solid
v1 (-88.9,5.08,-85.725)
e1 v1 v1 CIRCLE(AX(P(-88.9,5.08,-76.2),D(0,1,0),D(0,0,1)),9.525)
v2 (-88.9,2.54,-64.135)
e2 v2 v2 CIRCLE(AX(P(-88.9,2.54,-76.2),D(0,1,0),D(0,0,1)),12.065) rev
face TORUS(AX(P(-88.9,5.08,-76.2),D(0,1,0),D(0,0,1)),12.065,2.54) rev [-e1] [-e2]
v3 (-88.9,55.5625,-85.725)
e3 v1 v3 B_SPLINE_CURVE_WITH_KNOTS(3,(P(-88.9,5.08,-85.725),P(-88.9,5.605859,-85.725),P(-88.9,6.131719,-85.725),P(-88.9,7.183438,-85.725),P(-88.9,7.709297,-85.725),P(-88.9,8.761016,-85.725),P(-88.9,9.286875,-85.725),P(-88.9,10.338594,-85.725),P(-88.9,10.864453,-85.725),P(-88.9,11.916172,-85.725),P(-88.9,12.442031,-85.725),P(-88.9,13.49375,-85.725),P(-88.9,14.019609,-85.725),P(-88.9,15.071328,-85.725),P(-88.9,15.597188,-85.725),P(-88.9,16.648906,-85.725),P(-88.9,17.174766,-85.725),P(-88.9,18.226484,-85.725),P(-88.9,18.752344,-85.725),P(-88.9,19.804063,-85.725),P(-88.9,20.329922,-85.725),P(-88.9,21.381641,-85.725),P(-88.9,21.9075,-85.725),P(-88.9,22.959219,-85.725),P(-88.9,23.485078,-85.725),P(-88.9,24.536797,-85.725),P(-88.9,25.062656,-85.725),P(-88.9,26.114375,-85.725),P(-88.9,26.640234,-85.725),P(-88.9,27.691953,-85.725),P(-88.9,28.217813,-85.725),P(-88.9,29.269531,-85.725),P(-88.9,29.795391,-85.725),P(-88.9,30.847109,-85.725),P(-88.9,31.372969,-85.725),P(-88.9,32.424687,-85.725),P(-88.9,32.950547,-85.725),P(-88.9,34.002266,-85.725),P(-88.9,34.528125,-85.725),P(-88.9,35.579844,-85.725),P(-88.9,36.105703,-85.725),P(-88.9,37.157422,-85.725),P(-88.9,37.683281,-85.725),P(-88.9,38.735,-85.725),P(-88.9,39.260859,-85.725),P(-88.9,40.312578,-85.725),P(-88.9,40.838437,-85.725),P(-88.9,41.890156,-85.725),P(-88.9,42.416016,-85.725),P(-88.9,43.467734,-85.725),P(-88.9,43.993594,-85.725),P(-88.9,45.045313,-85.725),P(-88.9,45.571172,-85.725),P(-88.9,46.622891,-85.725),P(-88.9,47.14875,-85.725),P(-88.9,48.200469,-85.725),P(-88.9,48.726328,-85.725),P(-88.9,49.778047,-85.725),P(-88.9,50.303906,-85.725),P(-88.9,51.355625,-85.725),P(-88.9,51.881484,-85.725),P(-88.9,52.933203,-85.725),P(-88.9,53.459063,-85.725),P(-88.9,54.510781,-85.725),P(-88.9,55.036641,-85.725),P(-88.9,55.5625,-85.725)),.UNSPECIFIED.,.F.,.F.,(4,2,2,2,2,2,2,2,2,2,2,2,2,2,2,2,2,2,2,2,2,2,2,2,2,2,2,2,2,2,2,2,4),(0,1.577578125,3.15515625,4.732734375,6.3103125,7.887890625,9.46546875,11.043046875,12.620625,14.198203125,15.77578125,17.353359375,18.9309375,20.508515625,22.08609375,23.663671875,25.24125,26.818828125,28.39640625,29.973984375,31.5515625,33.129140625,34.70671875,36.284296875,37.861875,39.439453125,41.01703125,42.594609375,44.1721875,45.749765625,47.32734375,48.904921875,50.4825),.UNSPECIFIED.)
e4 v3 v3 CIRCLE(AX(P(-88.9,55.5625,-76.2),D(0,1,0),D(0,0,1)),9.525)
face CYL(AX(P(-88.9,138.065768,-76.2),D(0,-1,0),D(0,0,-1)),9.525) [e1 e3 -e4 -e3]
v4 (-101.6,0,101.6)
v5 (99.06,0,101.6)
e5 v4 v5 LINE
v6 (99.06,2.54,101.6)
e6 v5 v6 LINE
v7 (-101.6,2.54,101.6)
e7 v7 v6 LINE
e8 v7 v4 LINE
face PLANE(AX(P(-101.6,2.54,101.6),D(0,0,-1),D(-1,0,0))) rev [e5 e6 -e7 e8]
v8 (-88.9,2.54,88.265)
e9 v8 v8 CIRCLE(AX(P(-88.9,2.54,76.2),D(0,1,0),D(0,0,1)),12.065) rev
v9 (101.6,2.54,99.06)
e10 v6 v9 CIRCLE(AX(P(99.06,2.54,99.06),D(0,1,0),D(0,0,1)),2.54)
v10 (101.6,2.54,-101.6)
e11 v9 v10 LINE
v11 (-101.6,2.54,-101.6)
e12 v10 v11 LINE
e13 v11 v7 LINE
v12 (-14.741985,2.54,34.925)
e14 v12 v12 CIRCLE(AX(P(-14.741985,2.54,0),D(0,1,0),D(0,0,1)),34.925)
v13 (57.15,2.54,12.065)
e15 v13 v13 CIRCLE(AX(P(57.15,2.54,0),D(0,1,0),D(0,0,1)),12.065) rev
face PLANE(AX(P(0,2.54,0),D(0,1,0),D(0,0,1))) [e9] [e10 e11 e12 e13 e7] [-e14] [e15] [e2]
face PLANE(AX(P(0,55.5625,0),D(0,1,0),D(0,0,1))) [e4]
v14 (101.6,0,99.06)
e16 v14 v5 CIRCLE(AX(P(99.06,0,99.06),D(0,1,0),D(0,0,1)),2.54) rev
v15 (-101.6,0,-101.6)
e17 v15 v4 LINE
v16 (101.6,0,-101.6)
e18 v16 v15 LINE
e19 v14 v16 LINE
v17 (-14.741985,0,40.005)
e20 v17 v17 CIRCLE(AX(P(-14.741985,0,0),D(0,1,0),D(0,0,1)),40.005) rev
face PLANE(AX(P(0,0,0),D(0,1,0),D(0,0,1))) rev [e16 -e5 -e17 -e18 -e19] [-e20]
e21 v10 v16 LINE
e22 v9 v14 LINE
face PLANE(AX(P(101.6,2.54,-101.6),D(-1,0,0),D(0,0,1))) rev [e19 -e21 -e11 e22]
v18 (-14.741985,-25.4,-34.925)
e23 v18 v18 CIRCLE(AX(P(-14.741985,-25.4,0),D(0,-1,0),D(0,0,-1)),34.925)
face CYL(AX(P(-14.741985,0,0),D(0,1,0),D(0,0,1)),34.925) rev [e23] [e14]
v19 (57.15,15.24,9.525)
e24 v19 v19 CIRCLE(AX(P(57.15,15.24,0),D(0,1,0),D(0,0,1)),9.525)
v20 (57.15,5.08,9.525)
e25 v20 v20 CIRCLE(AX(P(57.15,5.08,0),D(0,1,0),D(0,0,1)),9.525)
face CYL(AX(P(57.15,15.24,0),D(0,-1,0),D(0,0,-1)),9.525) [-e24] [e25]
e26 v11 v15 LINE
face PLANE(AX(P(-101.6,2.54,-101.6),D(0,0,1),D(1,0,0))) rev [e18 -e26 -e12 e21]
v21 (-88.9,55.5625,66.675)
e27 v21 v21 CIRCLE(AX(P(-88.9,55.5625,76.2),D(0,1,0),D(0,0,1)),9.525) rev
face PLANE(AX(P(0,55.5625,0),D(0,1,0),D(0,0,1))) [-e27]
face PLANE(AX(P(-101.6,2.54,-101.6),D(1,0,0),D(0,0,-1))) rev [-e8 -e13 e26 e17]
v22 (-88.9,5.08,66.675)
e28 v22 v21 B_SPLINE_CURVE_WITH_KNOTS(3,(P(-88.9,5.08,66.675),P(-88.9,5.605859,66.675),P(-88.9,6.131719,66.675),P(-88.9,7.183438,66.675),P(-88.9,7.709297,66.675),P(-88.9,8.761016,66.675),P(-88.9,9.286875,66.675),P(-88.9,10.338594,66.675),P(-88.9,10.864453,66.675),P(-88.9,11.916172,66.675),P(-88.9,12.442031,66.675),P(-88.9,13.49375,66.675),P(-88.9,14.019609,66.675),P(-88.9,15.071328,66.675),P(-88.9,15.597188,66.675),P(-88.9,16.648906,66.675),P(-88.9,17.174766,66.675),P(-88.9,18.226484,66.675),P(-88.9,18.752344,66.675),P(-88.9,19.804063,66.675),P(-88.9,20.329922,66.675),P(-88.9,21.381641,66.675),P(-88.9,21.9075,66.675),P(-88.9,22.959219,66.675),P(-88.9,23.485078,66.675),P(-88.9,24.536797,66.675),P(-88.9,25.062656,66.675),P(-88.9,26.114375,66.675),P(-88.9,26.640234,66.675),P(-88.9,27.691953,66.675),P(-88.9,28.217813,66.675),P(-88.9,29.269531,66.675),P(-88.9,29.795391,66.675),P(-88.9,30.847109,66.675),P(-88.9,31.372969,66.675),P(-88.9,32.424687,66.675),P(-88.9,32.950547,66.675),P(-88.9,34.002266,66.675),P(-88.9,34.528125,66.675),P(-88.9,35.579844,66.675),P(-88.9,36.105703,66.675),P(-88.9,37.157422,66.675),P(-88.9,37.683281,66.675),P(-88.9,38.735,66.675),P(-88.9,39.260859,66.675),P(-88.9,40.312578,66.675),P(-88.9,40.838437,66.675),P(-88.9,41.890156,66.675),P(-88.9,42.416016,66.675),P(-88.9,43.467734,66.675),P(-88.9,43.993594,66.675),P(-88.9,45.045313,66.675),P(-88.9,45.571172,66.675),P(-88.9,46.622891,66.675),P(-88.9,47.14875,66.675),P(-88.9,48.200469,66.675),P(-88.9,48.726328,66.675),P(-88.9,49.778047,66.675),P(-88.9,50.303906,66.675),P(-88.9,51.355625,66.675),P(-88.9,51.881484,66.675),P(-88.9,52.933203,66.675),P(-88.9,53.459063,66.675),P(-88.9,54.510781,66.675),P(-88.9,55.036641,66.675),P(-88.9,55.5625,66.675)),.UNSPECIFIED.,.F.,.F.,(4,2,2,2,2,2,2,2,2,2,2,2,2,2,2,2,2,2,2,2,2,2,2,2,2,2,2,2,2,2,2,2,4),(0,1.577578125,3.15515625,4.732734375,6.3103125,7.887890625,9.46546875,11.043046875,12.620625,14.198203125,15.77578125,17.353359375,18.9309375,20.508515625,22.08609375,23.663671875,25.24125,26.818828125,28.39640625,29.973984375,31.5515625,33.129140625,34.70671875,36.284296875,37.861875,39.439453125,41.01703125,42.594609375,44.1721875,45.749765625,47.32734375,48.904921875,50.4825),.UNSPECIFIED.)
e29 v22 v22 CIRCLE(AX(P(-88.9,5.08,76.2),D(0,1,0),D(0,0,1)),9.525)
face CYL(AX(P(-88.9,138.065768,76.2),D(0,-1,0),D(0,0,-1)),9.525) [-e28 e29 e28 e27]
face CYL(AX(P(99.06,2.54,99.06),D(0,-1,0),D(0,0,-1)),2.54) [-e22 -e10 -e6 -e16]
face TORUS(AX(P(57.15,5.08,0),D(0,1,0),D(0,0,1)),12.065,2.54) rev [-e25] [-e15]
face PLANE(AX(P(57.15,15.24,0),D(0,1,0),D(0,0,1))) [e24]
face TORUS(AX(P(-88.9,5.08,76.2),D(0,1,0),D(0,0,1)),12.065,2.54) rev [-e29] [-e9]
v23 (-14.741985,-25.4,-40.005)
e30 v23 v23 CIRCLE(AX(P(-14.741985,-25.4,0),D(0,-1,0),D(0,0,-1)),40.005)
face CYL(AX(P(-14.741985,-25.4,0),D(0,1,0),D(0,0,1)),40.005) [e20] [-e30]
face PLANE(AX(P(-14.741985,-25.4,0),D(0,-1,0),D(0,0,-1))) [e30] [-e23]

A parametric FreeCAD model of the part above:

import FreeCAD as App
import Part
import Sketcher
from FreeCAD import Vector
Q = App.Units.Quantity


def edges_at(feature, points):
    """Names of the edges that pass closest to the given points."""
    edges = feature.Shape.Edges
    near = lambda p: min(range(len(edges)), key=lambda i: edges[i].distToShape(Part.Vertex(*p))[0])
    return sorted({f"Edge{near(p) + 1}" for p in points})

doc = App.newDocument("Part")
params = doc.addObject("Spreadsheet::Sheet", "Params")
for row, (alias, value) in enumerate([
    ("sketch1_width", "8 in"),
    ("pad1_length", "0.1 in"),
    ("sketch2_diameter", "0.75 in"),
    ("pad2_length", "0.5 in"),
    ("sketch3_diameter", "2.75 in"),
    ("sketch4_diameter", "0.75 in"),
    ("pad3_length", "2.0875 in"),
    ("fillet_radius", "0.1 in"),
    ("sketch5_diameter", "3.15 in"),
    ("sketch5_diameter2", "2.75 in"),
    ("pad4_length", "1 in"),
    ("fillet2_radius", "0.1 in"),
], start=1):
    params.set(f"A{row}", alias)
    params.set(f"B{row}", "=" + value)
    params.setAlias(f"B{row}", alias)

body = doc.addObject("PartDesign::Body", "Body")

# Sketch on XZ plane
sketch1 = body.newObject("Sketcher::SketchObject", "Sketch")
sketch1.AttachmentSupport = (doc.getObject("XZ_Plane"), [""])
sketch1.MapMode = "FlatFace"
sketch1.addGeometry([
    Part.LineSegment(Vector(-102, -102, 0), Vector(-102, 102, 0)),
    Part.LineSegment(Vector(-102, 102, 0), Vector(102, 102, 0)),
    Part.LineSegment(Vector(102, 102, 0), Vector(102, -102, 0)),
    Part.LineSegment(Vector(102, -102, 0), Vector(-102, -102, 0)),
], False)
sketch1.addConstraint([
    Sketcher.Constraint("Coincident", 0, 2, 1, 1),
    Sketcher.Constraint("Coincident", 1, 2, 2, 1),
    Sketcher.Constraint("Coincident", 2, 2, 3, 1),
    Sketcher.Constraint("Coincident", 3, 2, 0, 1),
    Sketcher.Constraint("Vertical", 0),
    Sketcher.Constraint("Horizontal", 1),
    Sketcher.Constraint("Vertical", 2),
    Sketcher.Constraint("Horizontal", 3),
    Sketcher.Constraint("Symmetric", 0, 2, 2, 2, -1, 1),
    Sketcher.Constraint("Equal", 3, 0),
    Sketcher.Constraint("DistanceX", 1, 1, 1, 2, Q("8 in")),
])
sketch1.setExpression("Constraints[10]", "Params.sketch1_width")
pad1 = body.newObject("PartDesign::Pad", "Pad")
pad1.Profile = sketch1
pad1.setExpression("Length", "Params.pad1_length")
pad1.Reversed = True

# Sketch on XZ plane
sketch2 = body.newObject("Sketcher::SketchObject", "Sketch001")
sketch2.AttachmentSupport = (doc.getObject("XZ_Plane"), [""])
sketch2.MapMode = "FlatFace"
sketch2.AttachmentOffset = App.Placement(Vector(0, 0, -0.1 * 25.4), App.Rotation())
sketch2.addGeometry(Part.Circle(Vector(57, 0, 0), Vector(0, 0, 1), 10), False)
sketch2.addConstraint([
    Sketcher.Constraint("PointOnObject", 0, 3, -1),
    Sketcher.Constraint("Diameter", 0, Q("0.75 in")),
    Sketcher.Constraint("DistanceX", -1, 1, 0, 3, Q("2.25 in")),
])
sketch2.setExpression("Constraints[1]", "Params.sketch2_diameter")
pad2 = body.newObject("PartDesign::Pad", "Pad001")
pad2.Profile = sketch2
pad2.setExpression("Length", "Params.pad2_length")
pad2.Reversed = True

# Sketch on XZ plane
sketch3 = body.newObject("Sketcher::SketchObject", "Sketch002")
sketch3.AttachmentSupport = (doc.getObject("XZ_Plane"), [""])
sketch3.MapMode = "FlatFace"
sketch3.AttachmentOffset = App.Placement(Vector(0, 0, -0.1 * 25.4), App.Rotation())
sketch3.addGeometry(Part.Circle(Vector(-15, 0, 0), Vector(0, 0, 1), 35), False)
sketch3.addConstraint([
    Sketcher.Constraint("PointOnObject", 0, 3, -1),
    Sketcher.Constraint("Diameter", 0, Q("2.75 in")),
    Sketcher.Constraint("DistanceX", 0, 3, -1, 1, 14.741985),
])
sketch3.setExpression("Constraints[1]", "Params.sketch3_diameter")
pocket1 = body.newObject("PartDesign::Pocket", "Pocket")
pocket1.Profile = sketch3
pocket1.Type = "ThroughAll"
pocket1.Reversed = True

# Sketch on XZ plane
sketch4 = body.newObject("Sketcher::SketchObject", "Sketch003")
sketch4.AttachmentSupport = (doc.getObject("XZ_Plane"), [""])
sketch4.MapMode = "FlatFace"
sketch4.AttachmentOffset = App.Placement(Vector(0, 0, -0.1 * 25.4), App.Rotation())
sketch4.addGeometry(Part.Circle(Vector(-89, -76, 0), Vector(0, 0, 1), 10), False)
sketch4.addConstraint([
    Sketcher.Constraint("Diameter", 0, Q("0.75 in")),
    Sketcher.Constraint("DistanceY", 0, 3, -1, 1, Q("3 in")),
    Sketcher.Constraint("DistanceX", 0, 3, -1, 1, Q("3.5 in")),
])
sketch4.setExpression("Constraints[0]", "Params.sketch4_diameter")
pad3 = body.newObject("PartDesign::Pad", "Pad002")
pad3.Profile = sketch4
pad3.setExpression("Length", "Params.pad3_length")
pad3.Reversed = True
doc.recompute()

mirrored = body.newObject("PartDesign::Mirrored", "Mirrored")
mirrored.Originals = [pad3]
mirrored.MirrorPlane = (doc.getObject("XY_Plane"), [""])
body.Tip = mirrored
doc.recompute()

fillet = body.newObject("PartDesign::Fillet", "Fillet")
fillet.Base = (mirrored, edges_at(mirrored, [(101.6, 1.27, 101.6)]))
fillet.setExpression("Radius", "Params.fillet_radius")

# Sketch on XZ plane
sketch5 = body.newObject("Sketcher::SketchObject", "Sketch004")
sketch5.AttachmentSupport = (doc.getObject("XZ_Plane"), [""])
sketch5.MapMode = "FlatFace"
sketch5.addGeometry([
    Part.Circle(Vector(-15, 0, 0), Vector(0, 0, 1), 40),
    Part.Circle(Vector(-15, 0, 0), Vector(0, 0, 1), 35),
], False)
sketch5.addConstraint([
    Sketcher.Constraint("Coincident", 1, 3, 0, 3),
    Sketcher.Constraint("PointOnObject", 0, 3, -1),
    Sketcher.Constraint("Diameter", 0, Q("3.15 in")),
    Sketcher.Constraint("Diameter", 1, Q("2.75 in")),
    Sketcher.Constraint("DistanceX", 0, 3, -1, 1, 14.741985),
])
sketch5.setExpression("Constraints[2]", "Params.sketch5_diameter")
sketch5.setExpression("Constraints[3]", "Params.sketch5_diameter2")
pad4 = body.newObject("PartDesign::Pad", "Pad003")
pad4.Profile = sketch5
pad4.setExpression("Length", "Params.pad4_length")
doc.recompute()

fillet2 = body.newObject("PartDesign::Fillet", "Fillet001")
fillet2.Base = (pad4, edges_at(pad4, [(57.15, 2.54, -9.525), (-88.9, 2.54, -66.675), (-88.9, 2.54, 66.675)]))
fillet2.setExpression("Radius", "Params.fillet2_radius")

doc.recompute()
